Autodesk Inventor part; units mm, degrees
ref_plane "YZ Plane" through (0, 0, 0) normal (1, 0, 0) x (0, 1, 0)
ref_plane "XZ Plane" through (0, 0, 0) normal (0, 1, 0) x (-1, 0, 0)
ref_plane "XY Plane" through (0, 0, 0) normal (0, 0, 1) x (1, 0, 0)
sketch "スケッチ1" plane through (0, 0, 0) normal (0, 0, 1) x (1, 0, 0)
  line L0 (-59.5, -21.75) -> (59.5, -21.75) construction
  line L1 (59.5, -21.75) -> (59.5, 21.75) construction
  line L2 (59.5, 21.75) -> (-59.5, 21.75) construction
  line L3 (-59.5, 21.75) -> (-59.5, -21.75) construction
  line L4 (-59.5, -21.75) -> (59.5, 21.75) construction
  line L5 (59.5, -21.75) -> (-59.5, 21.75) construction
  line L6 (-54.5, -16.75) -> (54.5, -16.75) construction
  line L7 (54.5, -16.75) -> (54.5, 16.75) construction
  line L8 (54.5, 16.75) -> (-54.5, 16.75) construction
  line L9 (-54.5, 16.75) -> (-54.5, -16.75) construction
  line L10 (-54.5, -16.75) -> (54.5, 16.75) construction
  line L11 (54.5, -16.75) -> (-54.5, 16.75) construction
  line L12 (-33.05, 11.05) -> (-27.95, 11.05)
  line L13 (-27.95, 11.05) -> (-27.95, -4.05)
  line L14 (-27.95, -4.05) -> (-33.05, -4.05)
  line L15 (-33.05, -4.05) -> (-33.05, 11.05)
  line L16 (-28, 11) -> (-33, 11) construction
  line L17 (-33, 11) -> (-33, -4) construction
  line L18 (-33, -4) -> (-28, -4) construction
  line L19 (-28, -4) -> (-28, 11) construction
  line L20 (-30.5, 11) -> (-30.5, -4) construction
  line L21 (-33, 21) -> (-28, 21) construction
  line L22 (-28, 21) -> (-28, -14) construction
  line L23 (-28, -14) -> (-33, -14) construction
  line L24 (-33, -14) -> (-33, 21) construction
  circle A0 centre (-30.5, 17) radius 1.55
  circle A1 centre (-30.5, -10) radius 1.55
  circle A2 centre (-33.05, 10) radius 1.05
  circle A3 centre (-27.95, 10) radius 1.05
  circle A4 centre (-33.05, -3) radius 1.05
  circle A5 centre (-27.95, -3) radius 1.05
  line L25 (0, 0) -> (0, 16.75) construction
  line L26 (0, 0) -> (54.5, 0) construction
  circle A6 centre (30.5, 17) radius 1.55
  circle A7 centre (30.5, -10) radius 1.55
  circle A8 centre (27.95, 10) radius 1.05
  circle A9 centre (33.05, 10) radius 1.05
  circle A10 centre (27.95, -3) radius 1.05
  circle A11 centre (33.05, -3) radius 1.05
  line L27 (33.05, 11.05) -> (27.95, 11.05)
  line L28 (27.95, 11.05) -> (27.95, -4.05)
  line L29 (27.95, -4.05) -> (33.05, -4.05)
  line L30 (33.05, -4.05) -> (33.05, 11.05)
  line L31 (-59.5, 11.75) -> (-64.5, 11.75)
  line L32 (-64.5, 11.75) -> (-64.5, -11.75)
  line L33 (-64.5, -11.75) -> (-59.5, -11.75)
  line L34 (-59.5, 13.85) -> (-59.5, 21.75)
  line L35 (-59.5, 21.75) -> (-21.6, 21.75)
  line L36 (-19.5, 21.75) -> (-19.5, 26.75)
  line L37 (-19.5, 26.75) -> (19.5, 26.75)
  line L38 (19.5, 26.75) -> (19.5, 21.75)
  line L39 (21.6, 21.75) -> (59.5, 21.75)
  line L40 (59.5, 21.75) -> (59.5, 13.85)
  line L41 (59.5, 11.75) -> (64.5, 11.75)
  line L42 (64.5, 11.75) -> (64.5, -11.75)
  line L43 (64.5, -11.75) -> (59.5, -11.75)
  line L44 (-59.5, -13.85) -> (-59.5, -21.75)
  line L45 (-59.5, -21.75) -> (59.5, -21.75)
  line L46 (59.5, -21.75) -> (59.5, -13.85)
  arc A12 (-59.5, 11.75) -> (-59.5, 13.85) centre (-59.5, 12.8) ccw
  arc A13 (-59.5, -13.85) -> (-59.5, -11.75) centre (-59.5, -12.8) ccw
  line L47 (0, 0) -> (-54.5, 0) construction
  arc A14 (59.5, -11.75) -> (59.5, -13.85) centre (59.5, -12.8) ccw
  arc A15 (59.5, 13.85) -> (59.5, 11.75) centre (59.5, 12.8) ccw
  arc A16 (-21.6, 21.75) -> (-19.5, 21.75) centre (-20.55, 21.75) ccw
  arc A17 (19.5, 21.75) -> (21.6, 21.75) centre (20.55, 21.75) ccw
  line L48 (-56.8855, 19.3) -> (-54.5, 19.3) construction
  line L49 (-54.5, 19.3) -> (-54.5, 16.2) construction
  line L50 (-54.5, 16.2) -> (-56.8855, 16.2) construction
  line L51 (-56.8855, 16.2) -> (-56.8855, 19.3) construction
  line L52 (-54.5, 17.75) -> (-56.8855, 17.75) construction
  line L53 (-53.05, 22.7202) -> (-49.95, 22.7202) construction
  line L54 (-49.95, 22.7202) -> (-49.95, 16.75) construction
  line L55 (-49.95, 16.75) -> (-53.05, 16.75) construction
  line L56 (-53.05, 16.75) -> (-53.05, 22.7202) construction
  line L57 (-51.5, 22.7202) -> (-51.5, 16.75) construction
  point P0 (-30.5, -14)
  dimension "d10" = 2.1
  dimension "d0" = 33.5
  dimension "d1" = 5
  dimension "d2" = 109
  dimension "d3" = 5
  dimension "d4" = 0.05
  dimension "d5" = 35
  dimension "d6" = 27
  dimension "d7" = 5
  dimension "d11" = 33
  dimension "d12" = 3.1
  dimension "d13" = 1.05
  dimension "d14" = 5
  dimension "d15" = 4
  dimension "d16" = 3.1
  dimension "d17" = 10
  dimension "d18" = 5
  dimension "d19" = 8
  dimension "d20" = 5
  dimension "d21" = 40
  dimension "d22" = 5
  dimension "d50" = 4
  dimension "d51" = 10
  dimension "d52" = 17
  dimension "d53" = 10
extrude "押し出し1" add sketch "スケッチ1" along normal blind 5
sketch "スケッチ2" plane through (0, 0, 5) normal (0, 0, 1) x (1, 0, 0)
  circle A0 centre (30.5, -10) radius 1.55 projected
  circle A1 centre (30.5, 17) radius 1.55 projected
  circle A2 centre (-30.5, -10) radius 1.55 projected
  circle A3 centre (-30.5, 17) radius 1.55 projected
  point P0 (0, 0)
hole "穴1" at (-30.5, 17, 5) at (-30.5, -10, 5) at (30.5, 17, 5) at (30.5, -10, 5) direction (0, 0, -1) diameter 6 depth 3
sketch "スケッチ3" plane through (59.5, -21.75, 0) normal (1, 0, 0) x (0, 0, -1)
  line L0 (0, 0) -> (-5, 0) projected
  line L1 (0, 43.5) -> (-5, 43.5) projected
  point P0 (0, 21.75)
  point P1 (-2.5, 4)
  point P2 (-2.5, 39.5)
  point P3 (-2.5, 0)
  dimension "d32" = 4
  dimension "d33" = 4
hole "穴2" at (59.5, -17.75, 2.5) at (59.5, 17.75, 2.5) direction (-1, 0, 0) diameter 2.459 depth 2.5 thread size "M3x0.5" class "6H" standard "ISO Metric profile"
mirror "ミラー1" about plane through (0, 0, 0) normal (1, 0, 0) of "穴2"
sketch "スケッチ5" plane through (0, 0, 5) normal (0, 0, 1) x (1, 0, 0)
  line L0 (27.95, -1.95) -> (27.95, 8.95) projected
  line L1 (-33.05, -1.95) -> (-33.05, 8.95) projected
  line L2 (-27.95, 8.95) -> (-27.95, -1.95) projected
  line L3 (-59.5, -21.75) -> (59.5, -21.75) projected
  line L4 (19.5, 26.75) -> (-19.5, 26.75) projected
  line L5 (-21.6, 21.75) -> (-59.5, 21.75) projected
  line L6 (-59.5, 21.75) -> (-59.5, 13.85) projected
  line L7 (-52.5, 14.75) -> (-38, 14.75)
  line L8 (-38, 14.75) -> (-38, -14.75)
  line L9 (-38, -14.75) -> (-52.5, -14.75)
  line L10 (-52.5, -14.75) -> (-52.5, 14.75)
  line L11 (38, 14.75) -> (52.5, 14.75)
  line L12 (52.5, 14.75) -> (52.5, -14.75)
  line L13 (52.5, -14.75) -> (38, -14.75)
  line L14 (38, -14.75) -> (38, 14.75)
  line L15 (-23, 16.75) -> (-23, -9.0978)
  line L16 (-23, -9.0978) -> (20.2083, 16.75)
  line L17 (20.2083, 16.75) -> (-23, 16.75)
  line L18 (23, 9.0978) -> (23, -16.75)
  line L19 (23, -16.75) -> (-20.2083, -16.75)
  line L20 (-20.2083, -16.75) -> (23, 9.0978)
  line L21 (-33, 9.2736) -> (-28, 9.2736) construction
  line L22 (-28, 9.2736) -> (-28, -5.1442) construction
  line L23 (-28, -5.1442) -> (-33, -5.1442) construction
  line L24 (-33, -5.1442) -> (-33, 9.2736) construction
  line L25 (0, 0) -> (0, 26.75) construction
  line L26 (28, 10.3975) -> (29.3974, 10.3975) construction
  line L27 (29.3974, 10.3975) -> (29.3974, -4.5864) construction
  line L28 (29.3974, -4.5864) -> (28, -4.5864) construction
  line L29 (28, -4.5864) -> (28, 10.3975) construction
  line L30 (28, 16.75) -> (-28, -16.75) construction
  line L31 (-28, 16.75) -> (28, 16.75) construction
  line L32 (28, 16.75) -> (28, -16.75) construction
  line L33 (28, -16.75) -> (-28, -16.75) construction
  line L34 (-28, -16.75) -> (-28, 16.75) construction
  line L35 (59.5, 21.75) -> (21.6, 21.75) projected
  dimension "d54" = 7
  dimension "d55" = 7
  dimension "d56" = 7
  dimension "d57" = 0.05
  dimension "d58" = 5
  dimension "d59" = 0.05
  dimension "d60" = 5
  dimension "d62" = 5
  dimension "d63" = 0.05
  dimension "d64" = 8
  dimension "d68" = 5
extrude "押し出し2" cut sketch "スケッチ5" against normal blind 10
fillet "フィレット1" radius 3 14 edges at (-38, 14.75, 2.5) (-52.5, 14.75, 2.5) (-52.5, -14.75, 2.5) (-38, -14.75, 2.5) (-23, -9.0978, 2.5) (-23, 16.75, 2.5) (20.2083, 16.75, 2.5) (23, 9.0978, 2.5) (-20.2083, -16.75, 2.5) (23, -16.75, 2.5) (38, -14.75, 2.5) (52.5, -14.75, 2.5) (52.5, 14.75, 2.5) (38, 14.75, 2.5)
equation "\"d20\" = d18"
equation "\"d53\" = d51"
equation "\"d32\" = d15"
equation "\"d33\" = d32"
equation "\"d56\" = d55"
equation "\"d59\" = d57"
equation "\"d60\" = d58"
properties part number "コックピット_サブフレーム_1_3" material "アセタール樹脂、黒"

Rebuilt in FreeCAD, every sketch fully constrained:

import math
import FreeCAD as App
import Part
import Sketcher


def edges_at(feature, points):
    """Names of the edges that pass closest to the given points."""
    edges = feature.Shape.Edges
    near = lambda p: min(range(len(edges)), key=lambda i: edges[i].distToShape(Part.Vertex(*p))[0])
    return sorted({f"Edge{near(p) + 1}" for p in points})


def add_polygon(sketch, points):
    """Adds a closed chain of lines whose ends are joined by coincident constraints."""
    first, n = sketch.GeometryCount, len(points)
    for a, b in zip(points, points[1:] + points[:1]):
        sketch.addGeometry(Part.LineSegment(App.Vector(*a, 0), App.Vector(*b, 0)), False)
    for i in range(n):
        sketch.addConstraint(Sketcher.Constraint("Coincident", first + i, 2, first + (i + 1) % n, 1))

doc = App.newDocument("Part")
body = doc.addObject("PartDesign::Body", "Body")

# Sketch on XY plane
sketch1 = doc.addObject("Sketcher::SketchObject", "Sketch")
body.addObject(sketch1)
sketch1.AttachmentSupport = (doc.XY_Plane, [""])
sketch1.MapMode = "FlatFace"
sketch1.addGeometry([
    Part.ArcOfCircle(Part.Circle(App.Vector(-59.5, 12.8, 0), App.Vector(0, 0, 1), 1.05), math.radians(-90), math.radians(90)),  # 0
    Part.LineSegment(App.Vector(-59.5, 11.75, 0), App.Vector(-64.5, 11.75, 0)),  # 1
    Part.LineSegment(App.Vector(-64.5, 11.75, 0), App.Vector(-64.5, -11.75, 0)),  # 2
    Part.LineSegment(App.Vector(-64.5, -11.75, 0), App.Vector(-59.5, -11.75, 0)),  # 3
    Part.ArcOfCircle(Part.Circle(App.Vector(-59.5, -12.8, 0), App.Vector(0, 0, 1), 1.05), math.radians(-90), math.radians(90)),  # 4
    Part.LineSegment(App.Vector(-59.5, -13.85, 0), App.Vector(-59.5, -21.75, 0)),  # 5
    Part.LineSegment(App.Vector(-59.5, -21.75, 0), App.Vector(59.5, -21.75, 0)),  # 6
    Part.LineSegment(App.Vector(59.5, -21.75, 0), App.Vector(59.5, -13.85, 0)),  # 7
    Part.ArcOfCircle(Part.Circle(App.Vector(59.5, -12.8, 0), App.Vector(0, 0, 1), 1.05), math.radians(90), math.radians(270)),  # 8
    Part.LineSegment(App.Vector(59.5, -11.75, 0), App.Vector(64.5, -11.75, 0)),  # 9
    Part.LineSegment(App.Vector(64.5, -11.75, 0), App.Vector(64.5, 11.75, 0)),  # 10
    Part.LineSegment(App.Vector(64.5, 11.75, 0), App.Vector(59.5, 11.75, 0)),  # 11
    Part.ArcOfCircle(Part.Circle(App.Vector(59.5, 12.8, 0), App.Vector(0, 0, 1), 1.05), math.radians(90), math.radians(270)),  # 12
    Part.LineSegment(App.Vector(59.5, 13.85, 0), App.Vector(59.5, 21.75, 0)),  # 13
    Part.LineSegment(App.Vector(59.5, 21.75, 0), App.Vector(21.6, 21.75, 0)),  # 14
    Part.ArcOfCircle(Part.Circle(App.Vector(20.55, 21.75, 0), App.Vector(0, 0, 1), 1.05), math.radians(180), math.radians(360)),  # 15
    Part.LineSegment(App.Vector(19.5, 21.75, 0), App.Vector(19.5, 26.75, 0)),  # 16
    Part.LineSegment(App.Vector(19.5, 26.75, 0), App.Vector(-19.5, 26.75, 0)),  # 17
    Part.LineSegment(App.Vector(-19.5, 26.75, 0), App.Vector(-19.5, 21.75, 0)),  # 18
    Part.ArcOfCircle(Part.Circle(App.Vector(-20.55, 21.75, 0), App.Vector(0, 0, 1), 1.05), math.radians(180), math.radians(360)),  # 19
    Part.LineSegment(App.Vector(-21.6, 21.75, 0), App.Vector(-59.5, 21.75, 0)),  # 20
    Part.LineSegment(App.Vector(-59.5, 21.75, 0), App.Vector(-59.5, 13.85, 0)),  # 21
    Part.Circle(App.Vector(-30.5, -10, 0), App.Vector(0, 0, 1), 1.55),  # 22
    Part.Circle(App.Vector(30.5, -10, 0), App.Vector(0, 0, 1), 1.55),  # 23
    Part.ArcOfCircle(Part.Circle(App.Vector(-33.05, 10, 0), App.Vector(0, 0, 1), 1.05), math.radians(90), math.radians(270)),  # 24
    Part.LineSegment(App.Vector(-33.05, 11.05, 0), App.Vector(-27.95, 11.05, 0)),  # 25
    Part.ArcOfCircle(Part.Circle(App.Vector(-27.95, 10, 0), App.Vector(0, 0, 1), 1.05), math.radians(-90), math.radians(90)),  # 26
    Part.LineSegment(App.Vector(-27.95, 8.95, 0), App.Vector(-27.95, -1.95, 0)),  # 27
    Part.ArcOfCircle(Part.Circle(App.Vector(-27.95, -3, 0), App.Vector(0, 0, 1), 1.05), math.radians(-90), math.radians(90)),  # 28
    Part.LineSegment(App.Vector(-27.95, -4.05, 0), App.Vector(-33.05, -4.05, 0)),  # 29
    Part.ArcOfCircle(Part.Circle(App.Vector(-33.05, -3, 0), App.Vector(0, 0, 1), 1.05), math.radians(90), math.radians(270)),  # 30
    Part.LineSegment(App.Vector(-33.05, -1.95, 0), App.Vector(-33.05, 8.95, 0)),  # 31
    Part.Circle(App.Vector(-30.5, 17, 0), App.Vector(0, 0, 1), 1.55),  # 32
    Part.ArcOfCircle(Part.Circle(App.Vector(27.95, 10, 0), App.Vector(0, 0, 1), 1.05), math.radians(90), math.radians(270)),  # 33
    Part.LineSegment(App.Vector(27.95, 11.05, 0), App.Vector(33.05, 11.05, 0)),  # 34
    Part.ArcOfCircle(Part.Circle(App.Vector(33.05, 10, 0), App.Vector(0, 0, 1), 1.05), math.radians(-90), math.radians(90)),  # 35
    Part.LineSegment(App.Vector(33.05, 8.95, 0), App.Vector(33.05, -1.95, 0)),  # 36
    Part.ArcOfCircle(Part.Circle(App.Vector(33.05, -3, 0), App.Vector(0, 0, 1), 1.05), math.radians(-90), math.radians(90)),  # 37
    Part.LineSegment(App.Vector(33.05, -4.05, 0), App.Vector(27.95, -4.05, 0)),  # 38
    Part.ArcOfCircle(Part.Circle(App.Vector(27.95, -3, 0), App.Vector(0, 0, 1), 1.05), math.radians(90), math.radians(270)),  # 39
    Part.LineSegment(App.Vector(27.95, -1.95, 0), App.Vector(27.95, 8.95, 0)),  # 40
    Part.Circle(App.Vector(30.5, 17, 0), App.Vector(0, 0, 1), 1.55),  # 41
], False)
sketch1.addConstraint([
    Sketcher.Constraint("Tangent", 0, 1, 1, 1),
    Sketcher.Constraint("Coincident", 1, 2, 2, 1),
    Sketcher.Constraint("Coincident", 2, 2, 3, 1),
    Sketcher.Constraint("Tangent", 3, 2, 4, 2),
    Sketcher.Constraint("Coincident", 4, 1, 5, 1),
    Sketcher.Constraint("Coincident", 5, 2, 6, 1),
    Sketcher.Constraint("Coincident", 6, 2, 7, 1),
    Sketcher.Constraint("Coincident", 7, 2, 8, 2),
    Sketcher.Constraint("Tangent", 8, 1, 9, 1),
    Sketcher.Constraint("Coincident", 9, 2, 10, 1),
    Sketcher.Constraint("Coincident", 10, 2, 11, 1),
    Sketcher.Constraint("Tangent", 11, 2, 12, 2),
    Sketcher.Constraint("Coincident", 12, 1, 13, 1),
    Sketcher.Constraint("Coincident", 13, 2, 14, 1),
    Sketcher.Constraint("Coincident", 14, 2, 15, 2),
    Sketcher.Constraint("Tangent", 15, 1, 16, 1),
    Sketcher.Constraint("Coincident", 16, 2, 17, 1),
    Sketcher.Constraint("Coincident", 17, 2, 18, 1),
    Sketcher.Constraint("Tangent", 18, 2, 19, 2),
    Sketcher.Constraint("Coincident", 19, 1, 20, 1),
    Sketcher.Constraint("Coincident", 20, 2, 21, 1),
    Sketcher.Constraint("Coincident", 21, 2, 0, 2),
    Sketcher.Constraint("Tangent", 24, 1, 25, 1),
    Sketcher.Constraint("Tangent", 25, 2, 26, 2),
    Sketcher.Constraint("Coincident", 26, 1, 27, 1),
    Sketcher.Constraint("Coincident", 27, 2, 28, 2),
    Sketcher.Constraint("Tangent", 28, 1, 29, 1),
    Sketcher.Constraint("Tangent", 29, 2, 30, 2),
    Sketcher.Constraint("Coincident", 30, 1, 31, 1),
    Sketcher.Constraint("Coincident", 31, 2, 24, 2),
    Sketcher.Constraint("Tangent", 33, 1, 34, 1),
    Sketcher.Constraint("Tangent", 34, 2, 35, 2),
    Sketcher.Constraint("Coincident", 35, 1, 36, 1),
    Sketcher.Constraint("Coincident", 36, 2, 37, 2),
    Sketcher.Constraint("Tangent", 37, 1, 38, 1),
    Sketcher.Constraint("Tangent", 38, 2, 39, 2),
    Sketcher.Constraint("Coincident", 39, 1, 40, 1),
    Sketcher.Constraint("Coincident", 40, 2, 33, 2),
    Sketcher.Constraint("Horizontal", 1),
    Sketcher.Constraint("Vertical", 2),
    Sketcher.Constraint("Horizontal", 3),
    Sketcher.Constraint("Vertical", 5),
    Sketcher.Constraint("Horizontal", 6),
    Sketcher.Constraint("Vertical", 7),
    Sketcher.Constraint("Horizontal", 9),
    Sketcher.Constraint("Vertical", 10),
    Sketcher.Constraint("Horizontal", 11),
    Sketcher.Constraint("Vertical", 13),
    Sketcher.Constraint("Horizontal", 14),
    Sketcher.Constraint("Vertical", 16),
    Sketcher.Constraint("Horizontal", 17),
    Sketcher.Constraint("Vertical", 18),
    Sketcher.Constraint("Horizontal", 20),
    Sketcher.Constraint("Vertical", 21),
    Sketcher.Constraint("Horizontal", 25),
    Sketcher.Constraint("Vertical", 27),
    Sketcher.Constraint("Horizontal", 29),
    Sketcher.Constraint("Vertical", 31),
    Sketcher.Constraint("Horizontal", 34),
    Sketcher.Constraint("Vertical", 36),
    Sketcher.Constraint("Horizontal", 38),
    Sketcher.Constraint("Vertical", 40),
    Sketcher.Constraint("Equal", 0, 4),
    Sketcher.Constraint("Equal", 4, 8),
    Sketcher.Constraint("Equal", 8, 12),
    Sketcher.Constraint("Equal", 12, 15),
    Sketcher.Constraint("Equal", 15, 19),
    Sketcher.Constraint("Equal", 22, 23),
    Sketcher.Constraint("Equal", 19, 24),
    Sketcher.Constraint("Equal", 24, 26),
    Sketcher.Constraint("Equal", 26, 28),
    Sketcher.Constraint("Equal", 28, 30),
    Sketcher.Constraint("Equal", 23, 32),
    Sketcher.Constraint("Equal", 30, 33),
    Sketcher.Constraint("Equal", 33, 35),
    Sketcher.Constraint("Equal", 35, 37),
    Sketcher.Constraint("Equal", 37, 39),
    Sketcher.Constraint("Equal", 32, 41),
    Sketcher.Constraint("Symmetric", 0, 3, 8, 3, -1, 1),
    Sketcher.Constraint("Symmetric", 4, 3, 12, 3, -1, 1),
    Sketcher.Constraint("Symmetric", 5, 2, 13, 2, -1, 1),
    Sketcher.Constraint("Symmetric", 6, 2, 20, 2, -1, 1),
    Sketcher.Constraint("Symmetric", 4, 3, 8, 3, -2),
    Sketcher.Constraint("Symmetric", 15, 3, 19, 3, -2),
    Sketcher.Constraint("Symmetric", 22, 3, 23, 3, -2),
    Sketcher.Constraint("Symmetric", 26, 3, 33, 3, -2),
    Sketcher.Constraint("Symmetric", 30, 3, 37, 3, -2),
    Sketcher.Constraint("Symmetric", 32, 3, 41, 3, -2),
    Sketcher.Constraint("Horizontal", 19, 3, 13, 2),
    Sketcher.Constraint("Vertical", 26, 3, 28, 3),
    Sketcher.Constraint("Vertical", 24, 3, 30, 3),
    Sketcher.Constraint("Vertical", 22, 3, 32, 3),
    Sketcher.Constraint("Vertical", 35, 3, 37, 3),
    Sketcher.Constraint("Vertical", 33, 3, 39, 3),
    Sketcher.Constraint("Vertical", 3, 2, 4, 1),
    Sketcher.Constraint("Vertical", 12, 3, 6, 2),
    Sketcher.Constraint("Vertical", 25, 2, 26, 1),
    Sketcher.Constraint("Vertical", 29, 2, 30, 1),
    Sketcher.Constraint("Vertical", 34, 2, 35, 1),
    Sketcher.Constraint("Vertical", 38, 2, 39, 1),
    Sketcher.Constraint("Equal", 3, 9),
    Sketcher.Constraint("Equal", 11, 16),
    Sketcher.Constraint("Diameter", 22, 3.1),
    Sketcher.Constraint("DistanceX", 1, 2, 1, 1, 5.0),
    Sketcher.Constraint("Radius", 0, 1.05),
    Sketcher.Constraint("DistanceY", 22, 3, -1, 1, 10.0),
    Sketcher.Constraint("DistanceY", -1, 1, 24, 3, 10.0),
    Sketcher.Constraint("DistanceY", -1, 1, 32, 3, 17.0),
    Sketcher.Constraint("DistanceY", 5, 2, 3, 2, 10.0),
    Sketcher.Constraint("DistanceX", 6, 1, 6, 2, 119.0),
    Sketcher.Constraint("DistanceX", 17, 2, 17, 1, 39.0),
    Sketcher.Constraint("DistanceX", 25, 1, 25, 2, 5.1),
    Sketcher.Constraint("DistanceY", 2, 2, 2, 1, 23.5),
    Sketcher.Constraint("DistanceY", 27, 2, 27, 1, 10.9),
    Sketcher.Constraint("DistanceX", 4, 3, 22, 3, 29.0),
    Sketcher.Constraint("DistanceX", 24, 3, 19, 3, 12.5),
])
pad1 = doc.addObject("PartDesign::Pad", "Pad")
body.addObject(pad1)
pad1.Profile = sketch1
pad1.Length = 5

# Sketch on XY plane
sketch2 = doc.addObject("Sketcher::SketchObject", "Sketch001")
body.addObject(sketch2)
sketch2.AttachmentSupport = (doc.XY_Plane, [""])
sketch2.MapMode = "FlatFace"
sketch2.AttachmentOffset = App.Placement(App.Vector(0, 0, 5), App.Rotation())
sketch2.addGeometry([
    Part.Circle(App.Vector(-30.5, 17, 0), App.Vector(0, 0, 1), 3),
    Part.Circle(App.Vector(-30.5, -10, 0), App.Vector(0, 0, 1), 3),
    Part.Circle(App.Vector(30.5, 17, 0), App.Vector(0, 0, 1), 3),
    Part.Circle(App.Vector(30.5, -10, 0), App.Vector(0, 0, 1), 3),
], False)
sketch2.addConstraint([
    Sketcher.Constraint("Equal", 0, 1),
    Sketcher.Constraint("Equal", 1, 2),
    Sketcher.Constraint("Equal", 2, 3),
    Sketcher.Constraint("Symmetric", 0, 3, 2, 3, -2),
    Sketcher.Constraint("Symmetric", 1, 3, 3, 3, -2),
    Sketcher.Constraint("Vertical", 0, 3, 1, 3),
    Sketcher.Constraint("Diameter", 0, 6.0),
    Sketcher.Constraint("DistanceY", -1, 1, 0, 3, 17.0),
    Sketcher.Constraint("DistanceY", 1, 3, -1, 1, 10.0),
    Sketcher.Constraint("DistanceX", 0, 3, 2, 3, 61.0),
])
doc.recompute()
hole = doc.addObject("PartDesign::Hole", "Hole")
body.addObject(hole)
hole.Profile = sketch2
hole.ThreadType = "None"
hole.Diameter = 6
hole.DepthType = "Dimension"
hole.Depth = 3
hole.DrillPoint = "Flat"

# Sketch on YZ plane
sketch3 = doc.addObject("Sketcher::SketchObject", "Sketch002")
body.addObject(sketch3)
sketch3.AttachmentSupport = (doc.YZ_Plane, [""])
sketch3.MapMode = "FlatFace"
sketch3.AttachmentOffset = App.Placement(App.Vector(0, 0, 59.5), App.Rotation())
sketch3.addGeometry([
    Part.Circle(App.Vector(-17.75, 2.5, 0), App.Vector(0, 0, 1), 1.2295),
    Part.Circle(App.Vector(17.75, 2.5, 0), App.Vector(0, 0, 1), 1.2295),
], False)
sketch3.addConstraint([
    Sketcher.Constraint("Equal", 0, 1),
    Sketcher.Constraint("Symmetric", 0, 3, 1, 3, -2),
    Sketcher.Constraint("Diameter", 0, 2.459),
    Sketcher.Constraint("DistanceY", -1, 1, 0, 3, 2.5),
    Sketcher.Constraint("DistanceX", 0, 3, 1, 3, 35.5),
])
doc.recompute()
hole2 = doc.addObject("PartDesign::Hole", "Hole001")
body.addObject(hole2)
hole2.Profile = sketch3
hole2.ThreadType = "None"
hole2.Diameter = 2.459
hole2.DepthType = "Dimension"
hole2.Depth = 2.5
hole2.DrillPoint = "Flat"
doc.recompute()

mirrored = doc.addObject("PartDesign::Mirrored", "Mirrored")
body.addObject(mirrored)
mirrored.Originals = [hole2]
mirrored.MirrorPlane = (doc.YZ_Plane, [""])
body.Tip = mirrored

# Sketch on XY plane
sketch4 = doc.addObject("Sketcher::SketchObject", "Sketch003")
body.addObject(sketch4)
sketch4.AttachmentSupport = (doc.XY_Plane, [""])
sketch4.MapMode = "FlatFace"
sketch4.AttachmentOffset = App.Placement(App.Vector(0, 0, 5), App.Rotation())
add_polygon(sketch4, [(-38, 14.75), (-52.5, 14.75), (-52.5, -14.75), (-38, -14.75)])  # lines 0-3
add_polygon(sketch4, [(52.5, 14.75), (38, 14.75), (38, -14.75), (52.5, -14.75)])  # lines 4-7
add_polygon(sketch4, [(20.2083, 16.75), (-23, 16.75), (-23, -9.0978)])  # lines 8-10
add_polygon(sketch4, [(23, -16.75), (23, 9.0978), (-20.2083, -16.75)])  # lines 11-13
sketch4.addConstraint([
    Sketcher.Constraint("Horizontal", 0),
    Sketcher.Constraint("Vertical", 1),
    Sketcher.Constraint("Horizontal", 2),
    Sketcher.Constraint("Vertical", 3),
    Sketcher.Constraint("Horizontal", 4),
    Sketcher.Constraint("Vertical", 5),
    Sketcher.Constraint("Horizontal", 6),
    Sketcher.Constraint("Vertical", 7),
    Sketcher.Constraint("Horizontal", 8),
    Sketcher.Constraint("Vertical", 9),
    Sketcher.Constraint("Vertical", 11),
    Sketcher.Constraint("Horizontal", 13),
    Sketcher.Constraint("Symmetric", 2, 2, 4, 2, -1, 1),
    Sketcher.Constraint("Symmetric", 0, 2, 6, 2, -1, 1),
    Sketcher.Constraint("Symmetric", 9, 2, 11, 2, -1, 1),
    Sketcher.Constraint("Symmetric", 10, 2, 12, 2, -1, 1),
    Sketcher.Constraint("Horizontal", 3, 2, 4, 2),
    Sketcher.Constraint("DistanceX", 0, 2, 0, 1, 14.5),
    Sketcher.Constraint("DistanceY", 1, 2, 1, 1, 29.5),
    Sketcher.Constraint("DistanceX", 2, 2, -1, 1, 38.0),
    Sketcher.Constraint("DistanceX", 8, 2, -1, 1, 23.0),
    Sketcher.Constraint("DistanceY", 3, 2, 8, 2, 2.0),
    Sketcher.Constraint("DistanceX", 8, 2, 8, 1, 43.2083),
    Sketcher.Constraint("DistanceY", 9, 2, 9, 1, 25.8478),
])
pocket1 = doc.addObject("PartDesign::Pocket", "Pocket")
body.addObject(pocket1)
pocket1.Profile = sketch4
pocket1.Length = 10
doc.recompute()

fillet = doc.addObject("PartDesign::Fillet", "Fillet")
body.addObject(fillet)
fillet.Base = (pocket1, edges_at(pocket1, [
    (-38, 14.75, 2.5),
    (-52.5, 14.75, 2.5),
    (-52.5, -14.75, 2.5),
    (-38, -14.75, 2.5),
    (-23, -9.098, 2.5),
    (-23, 16.75, 2.5),
    (20.208, 16.75, 2.5),
    (23, 9.098, 2.5),
    (-20.208, -16.75, 2.5),
    (23, -16.75, 2.5),
    (38, -14.75, 2.5),
    (52.5, -14.75, 2.5),
    (52.5, 14.75, 2.5),
    (38, 14.75, 2.5),
]))
fillet.Radius = 3

doc.recompute()
